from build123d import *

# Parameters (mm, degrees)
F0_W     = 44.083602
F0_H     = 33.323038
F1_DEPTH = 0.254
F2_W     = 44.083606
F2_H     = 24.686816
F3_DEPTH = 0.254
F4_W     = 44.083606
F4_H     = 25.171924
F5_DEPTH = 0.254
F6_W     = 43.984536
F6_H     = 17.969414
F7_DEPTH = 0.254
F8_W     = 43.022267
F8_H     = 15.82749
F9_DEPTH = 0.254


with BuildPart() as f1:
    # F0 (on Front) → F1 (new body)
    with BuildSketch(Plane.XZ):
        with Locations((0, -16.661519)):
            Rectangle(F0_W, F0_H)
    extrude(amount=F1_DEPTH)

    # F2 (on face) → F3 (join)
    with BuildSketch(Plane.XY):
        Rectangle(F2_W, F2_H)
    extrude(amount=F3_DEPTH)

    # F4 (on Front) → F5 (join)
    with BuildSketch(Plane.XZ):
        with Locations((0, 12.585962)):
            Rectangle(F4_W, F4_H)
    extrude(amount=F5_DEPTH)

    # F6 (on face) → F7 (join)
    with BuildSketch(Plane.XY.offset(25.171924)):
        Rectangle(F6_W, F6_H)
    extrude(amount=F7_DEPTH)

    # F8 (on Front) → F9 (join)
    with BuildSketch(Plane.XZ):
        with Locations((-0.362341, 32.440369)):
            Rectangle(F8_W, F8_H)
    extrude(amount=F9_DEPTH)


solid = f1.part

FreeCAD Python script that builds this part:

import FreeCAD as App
import Part
import Sketcher

V = App.Vector
Q = App.Units.Quantity


def add_polygon(sketch, points):
    """Adds a closed chain of lines whose ends are joined by coincident constraints."""
    first, n = sketch.GeometryCount, len(points)
    for a, b in zip(points, points[1:] + points[:1]):
        sketch.addGeometry(Part.LineSegment(App.Vector(*a, 0), App.Vector(*b, 0)), False)
    for i in range(n):
        sketch.addConstraint(Sketcher.Constraint("Coincident", first + i, 2, first + (i + 1) % n, 1))

doc = App.newDocument("Part")
body = doc.addObject("PartDesign::Body", "Body")

# Sketch on XZ plane
sketch1 = body.newObject("Sketcher::SketchObject", "Sketch")
sketch1.AttachmentSupport = (doc.getObject("XZ_Plane"), [""])
sketch1.MapMode = "FlatFace"
add_polygon(sketch1, [(-22.041801, 0), (-22.041801, -33.323038), (22.041801, -33.323038), (22.041801, 0)])  # lines 0-3
sketch1.addConstraint([
    Sketcher.Constraint("Vertical", 0),
    Sketcher.Constraint("Horizontal", 1),
    Sketcher.Constraint("Vertical", 2),
    Sketcher.Constraint("Horizontal", 3),
    Sketcher.Constraint("Symmetric", 2, 2, 3, 2, -1, 1),
    Sketcher.Constraint("DistanceX", 0, 2, -1, 1, Q("22.041801 mm")),
    Sketcher.Constraint("DistanceY", 0, 2, 0, 1, Q("33.323038 mm")),
])
pad1 = body.newObject("PartDesign::Pad", "Pad")
pad1.Profile = sketch1
pad1.Length = Q("0.01 in")

# Sketch on XY plane
sketch2 = body.newObject("Sketcher::SketchObject", "Sketch001")
sketch2.AttachmentSupport = (doc.getObject("XY_Plane"), [""])
sketch2.MapMode = "FlatFace"
add_polygon(sketch2, [(-22.041803, 12.343408), (-22.041803, -12.343408), (22.041803, -12.343408), (22.041803, 12.343408)])  # lines 0-3
sketch2.addConstraint([
    Sketcher.Constraint("Vertical", 0),
    Sketcher.Constraint("Horizontal", 1),
    Sketcher.Constraint("Vertical", 2),
    Sketcher.Constraint("Horizontal", 3),
    Sketcher.Constraint("Symmetric", 0, 2, 2, 2, -1, 1),
    Sketcher.Constraint("DistanceX", 1, 1, 1, 2, Q("44.083606 mm")),
    Sketcher.Constraint("DistanceY", 0, 2, 0, 1, Q("24.686816 mm")),
])
pad2 = body.newObject("PartDesign::Pad", "Pad001")
pad2.Profile = sketch2
pad2.Length = Q("0.01 in")

# Sketch on XZ plane
sketch3 = body.newObject("Sketcher::SketchObject", "Sketch002")
sketch3.AttachmentSupport = (doc.getObject("XZ_Plane"), [""])
sketch3.MapMode = "FlatFace"
add_polygon(sketch3, [(-22.041803, 25.171924), (-22.041803, 0), (22.041803, 0), (22.041803, 25.171924)])  # lines 0-3
sketch3.addConstraint([
    Sketcher.Constraint("Vertical", 0),
    Sketcher.Constraint("Horizontal", 1),
    Sketcher.Constraint("Vertical", 2),
    Sketcher.Constraint("Horizontal", 3),
    Sketcher.Constraint("Symmetric", 0, 2, 1, 2, -1, 1),
    Sketcher.Constraint("DistanceX", 1, 1, 1, 2, Q("44.083606 mm")),
    Sketcher.Constraint("DistanceY", 0, 2, 0, 1, Q("25.171924 mm")),
])
pad3 = body.newObject("PartDesign::Pad", "Pad002")
pad3.Profile = sketch3
pad3.Length = Q("0.01 in")

# Sketch on XY plane
sketch4 = body.newObject("Sketcher::SketchObject", "Sketch003")
sketch4.AttachmentSupport = (doc.getObject("XY_Plane"), [""])
sketch4.MapMode = "FlatFace"
sketch4.AttachmentOffset = App.Placement(V(0, 0, 25.171924), App.Rotation())
add_polygon(sketch4, [(-21.992268, 8.984707), (-21.992268, -8.984707), (21.992268, -8.984707), (21.992268, 8.984707)])  # lines 0-3
sketch4.addConstraint([
    Sketcher.Constraint("Vertical", 0),
    Sketcher.Constraint("Horizontal", 1),
    Sketcher.Constraint("Vertical", 2),
    Sketcher.Constraint("Horizontal", 3),
    Sketcher.Constraint("Symmetric", 0, 2, 2, 2, -1, 1),
    Sketcher.Constraint("DistanceX", 1, 1, 1, 2, Q("43.984536 mm")),
    Sketcher.Constraint("DistanceY", 0, 2, 0, 1, Q("17.969414 mm")),
])
pad4 = body.newObject("PartDesign::Pad", "Pad003")
pad4.Profile = sketch4
pad4.Length = Q("0.01 in")

# Sketch on XZ plane
sketch5 = body.newObject("Sketcher::SketchObject", "Sketch004")
sketch5.AttachmentSupport = (doc.getObject("XZ_Plane"), [""])
sketch5.MapMode = "FlatFace"
add_polygon(sketch5, [(-21.873475, 40.354114), (-21.873475, 24.526624), (21.148792, 24.526624), (21.148792, 40.354114)])  # lines 0-3
sketch5.addConstraint([
    Sketcher.Constraint("Vertical", 0),
    Sketcher.Constraint("Horizontal", 1),
    Sketcher.Constraint("Vertical", 2),
    Sketcher.Constraint("Horizontal", 3),
    Sketcher.Constraint("DistanceY", 0, 2, 0, 1, Q("15.82749 mm")),
    Sketcher.Constraint("DistanceX", 1, 1, 1, 2, Q("43.022267 mm")),
    Sketcher.Constraint("DistanceX", 0, 2, -1, 1, Q("21.873475 mm")),
    Sketcher.Constraint("DistanceY", -1, 1, 0, 2, Q("24.526624 mm")),
])
pad5 = body.newObject("PartDesign::Pad", "Pad004")
pad5.Profile = sketch5
pad5.Length = Q("0.01 in")

doc.recompute()
